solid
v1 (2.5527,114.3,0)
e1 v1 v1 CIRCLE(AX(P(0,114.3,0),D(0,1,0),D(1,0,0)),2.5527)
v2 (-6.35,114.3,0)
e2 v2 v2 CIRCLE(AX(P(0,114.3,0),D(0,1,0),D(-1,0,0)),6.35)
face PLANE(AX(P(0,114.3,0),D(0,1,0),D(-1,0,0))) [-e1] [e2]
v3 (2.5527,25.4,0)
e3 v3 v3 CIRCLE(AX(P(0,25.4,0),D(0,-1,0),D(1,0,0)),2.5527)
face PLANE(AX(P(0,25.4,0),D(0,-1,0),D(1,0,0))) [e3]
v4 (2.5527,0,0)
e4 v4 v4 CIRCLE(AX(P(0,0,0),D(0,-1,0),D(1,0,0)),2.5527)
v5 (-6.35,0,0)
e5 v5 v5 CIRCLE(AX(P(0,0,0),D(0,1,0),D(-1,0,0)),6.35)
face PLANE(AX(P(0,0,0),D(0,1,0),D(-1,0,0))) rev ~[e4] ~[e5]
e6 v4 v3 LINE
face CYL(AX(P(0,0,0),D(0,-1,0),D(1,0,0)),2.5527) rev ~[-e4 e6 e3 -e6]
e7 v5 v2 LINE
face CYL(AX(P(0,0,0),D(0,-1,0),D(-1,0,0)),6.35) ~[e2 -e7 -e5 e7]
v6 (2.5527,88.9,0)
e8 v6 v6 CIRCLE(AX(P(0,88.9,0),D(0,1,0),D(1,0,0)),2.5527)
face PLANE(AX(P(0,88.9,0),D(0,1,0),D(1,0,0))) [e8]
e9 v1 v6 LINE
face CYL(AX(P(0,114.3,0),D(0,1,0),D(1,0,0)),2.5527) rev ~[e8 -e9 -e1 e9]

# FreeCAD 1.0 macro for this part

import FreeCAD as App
import Part
import Sketcher

V = App.Vector
Q = App.Units.Quantity

doc = App.newDocument("Part")
params = doc.addObject("Spreadsheet::Sheet", "Params")
for row, (alias, value) in enumerate([
    ("sketch1_diameter", "0.5 in"),
    ("pad1_length", "4.5 in"),
    ("sketch2_diameter", "0.201 in"),
    ("pocket1_length", "1 in"),
    ("sketch3_diameter", "0.201 in"),
    ("pocket2_length", "1 in"),
], start=1):
    params.set(f"A{row}", alias)
    params.set(f"B{row}", "=" + value)
    params.setAlias(f"B{row}", alias)

body = doc.addObject("PartDesign::Body", "Body")

# Sketch on XZ plane
sketch1 = body.newObject("Sketcher::SketchObject", "Sketch")
sketch1.AttachmentSupport = (doc.getObject("XZ_Plane"), [""])
sketch1.MapMode = "FlatFace"
sketch1.addGeometry(Part.Circle(V(0, 0, 0), V(0, 0, 1), 6), False)
sketch1.addConstraint(Sketcher.Constraint("Coincident", 0, 3, -1, 1))
sketch1.addConstraint(Sketcher.Constraint("Diameter", 0, Q("0.5 in")))
sketch1.setExpression("Constraints[1]", "Params.sketch1_diameter")
pad1 = body.newObject("PartDesign::Pad", "Pad")
pad1.Profile = sketch1
pad1.setExpression("Length", "Params.pad1_length")
pad1.Reversed = True

# Sketch on XZ plane
sketch2 = body.newObject("Sketcher::SketchObject", "Sketch001")
sketch2.AttachmentSupport = (doc.getObject("XZ_Plane"), [""])
sketch2.MapMode = "FlatFace"
sketch2.AttachmentOffset = App.Placement(V(0, 0, -4.5 * 25.4), App.Rotation())
sketch2.addGeometry(Part.Circle(V(0, 0, 0), V(0, 0, 1), 2.6), False)
sketch2.addConstraint(Sketcher.Constraint("Coincident", 0, 3, -1, 1))
sketch2.addConstraint(Sketcher.Constraint("Diameter", 0, Q("0.201 in")))
sketch2.setExpression("Constraints[1]", "Params.sketch2_diameter")
pocket1 = body.newObject("PartDesign::Pocket", "Pocket")
pocket1.Profile = sketch2
pocket1.setExpression("Length", "Params.pocket1_length")
pocket1.Reversed = True

# Sketch on XZ plane
sketch3 = body.newObject("Sketcher::SketchObject", "Sketch002")
sketch3.AttachmentSupport = (doc.getObject("XZ_Plane"), [""])
sketch3.MapMode = "FlatFace"
sketch3.addGeometry(Part.Circle(V(0, 0, 0), V(0, 0, 1), 2.6), False)
sketch3.addConstraint(Sketcher.Constraint("Coincident", 0, 3, -1, 1))
sketch3.addConstraint(Sketcher.Constraint("Diameter", 0, Q("0.201 in")))
sketch3.setExpression("Constraints[1]", "Params.sketch3_diameter")
pocket2 = body.newObject("PartDesign::Pocket", "Pocket001")
pocket2.Profile = sketch3
pocket2.setExpression("Length", "Params.pocket2_length")

doc.recompute()
